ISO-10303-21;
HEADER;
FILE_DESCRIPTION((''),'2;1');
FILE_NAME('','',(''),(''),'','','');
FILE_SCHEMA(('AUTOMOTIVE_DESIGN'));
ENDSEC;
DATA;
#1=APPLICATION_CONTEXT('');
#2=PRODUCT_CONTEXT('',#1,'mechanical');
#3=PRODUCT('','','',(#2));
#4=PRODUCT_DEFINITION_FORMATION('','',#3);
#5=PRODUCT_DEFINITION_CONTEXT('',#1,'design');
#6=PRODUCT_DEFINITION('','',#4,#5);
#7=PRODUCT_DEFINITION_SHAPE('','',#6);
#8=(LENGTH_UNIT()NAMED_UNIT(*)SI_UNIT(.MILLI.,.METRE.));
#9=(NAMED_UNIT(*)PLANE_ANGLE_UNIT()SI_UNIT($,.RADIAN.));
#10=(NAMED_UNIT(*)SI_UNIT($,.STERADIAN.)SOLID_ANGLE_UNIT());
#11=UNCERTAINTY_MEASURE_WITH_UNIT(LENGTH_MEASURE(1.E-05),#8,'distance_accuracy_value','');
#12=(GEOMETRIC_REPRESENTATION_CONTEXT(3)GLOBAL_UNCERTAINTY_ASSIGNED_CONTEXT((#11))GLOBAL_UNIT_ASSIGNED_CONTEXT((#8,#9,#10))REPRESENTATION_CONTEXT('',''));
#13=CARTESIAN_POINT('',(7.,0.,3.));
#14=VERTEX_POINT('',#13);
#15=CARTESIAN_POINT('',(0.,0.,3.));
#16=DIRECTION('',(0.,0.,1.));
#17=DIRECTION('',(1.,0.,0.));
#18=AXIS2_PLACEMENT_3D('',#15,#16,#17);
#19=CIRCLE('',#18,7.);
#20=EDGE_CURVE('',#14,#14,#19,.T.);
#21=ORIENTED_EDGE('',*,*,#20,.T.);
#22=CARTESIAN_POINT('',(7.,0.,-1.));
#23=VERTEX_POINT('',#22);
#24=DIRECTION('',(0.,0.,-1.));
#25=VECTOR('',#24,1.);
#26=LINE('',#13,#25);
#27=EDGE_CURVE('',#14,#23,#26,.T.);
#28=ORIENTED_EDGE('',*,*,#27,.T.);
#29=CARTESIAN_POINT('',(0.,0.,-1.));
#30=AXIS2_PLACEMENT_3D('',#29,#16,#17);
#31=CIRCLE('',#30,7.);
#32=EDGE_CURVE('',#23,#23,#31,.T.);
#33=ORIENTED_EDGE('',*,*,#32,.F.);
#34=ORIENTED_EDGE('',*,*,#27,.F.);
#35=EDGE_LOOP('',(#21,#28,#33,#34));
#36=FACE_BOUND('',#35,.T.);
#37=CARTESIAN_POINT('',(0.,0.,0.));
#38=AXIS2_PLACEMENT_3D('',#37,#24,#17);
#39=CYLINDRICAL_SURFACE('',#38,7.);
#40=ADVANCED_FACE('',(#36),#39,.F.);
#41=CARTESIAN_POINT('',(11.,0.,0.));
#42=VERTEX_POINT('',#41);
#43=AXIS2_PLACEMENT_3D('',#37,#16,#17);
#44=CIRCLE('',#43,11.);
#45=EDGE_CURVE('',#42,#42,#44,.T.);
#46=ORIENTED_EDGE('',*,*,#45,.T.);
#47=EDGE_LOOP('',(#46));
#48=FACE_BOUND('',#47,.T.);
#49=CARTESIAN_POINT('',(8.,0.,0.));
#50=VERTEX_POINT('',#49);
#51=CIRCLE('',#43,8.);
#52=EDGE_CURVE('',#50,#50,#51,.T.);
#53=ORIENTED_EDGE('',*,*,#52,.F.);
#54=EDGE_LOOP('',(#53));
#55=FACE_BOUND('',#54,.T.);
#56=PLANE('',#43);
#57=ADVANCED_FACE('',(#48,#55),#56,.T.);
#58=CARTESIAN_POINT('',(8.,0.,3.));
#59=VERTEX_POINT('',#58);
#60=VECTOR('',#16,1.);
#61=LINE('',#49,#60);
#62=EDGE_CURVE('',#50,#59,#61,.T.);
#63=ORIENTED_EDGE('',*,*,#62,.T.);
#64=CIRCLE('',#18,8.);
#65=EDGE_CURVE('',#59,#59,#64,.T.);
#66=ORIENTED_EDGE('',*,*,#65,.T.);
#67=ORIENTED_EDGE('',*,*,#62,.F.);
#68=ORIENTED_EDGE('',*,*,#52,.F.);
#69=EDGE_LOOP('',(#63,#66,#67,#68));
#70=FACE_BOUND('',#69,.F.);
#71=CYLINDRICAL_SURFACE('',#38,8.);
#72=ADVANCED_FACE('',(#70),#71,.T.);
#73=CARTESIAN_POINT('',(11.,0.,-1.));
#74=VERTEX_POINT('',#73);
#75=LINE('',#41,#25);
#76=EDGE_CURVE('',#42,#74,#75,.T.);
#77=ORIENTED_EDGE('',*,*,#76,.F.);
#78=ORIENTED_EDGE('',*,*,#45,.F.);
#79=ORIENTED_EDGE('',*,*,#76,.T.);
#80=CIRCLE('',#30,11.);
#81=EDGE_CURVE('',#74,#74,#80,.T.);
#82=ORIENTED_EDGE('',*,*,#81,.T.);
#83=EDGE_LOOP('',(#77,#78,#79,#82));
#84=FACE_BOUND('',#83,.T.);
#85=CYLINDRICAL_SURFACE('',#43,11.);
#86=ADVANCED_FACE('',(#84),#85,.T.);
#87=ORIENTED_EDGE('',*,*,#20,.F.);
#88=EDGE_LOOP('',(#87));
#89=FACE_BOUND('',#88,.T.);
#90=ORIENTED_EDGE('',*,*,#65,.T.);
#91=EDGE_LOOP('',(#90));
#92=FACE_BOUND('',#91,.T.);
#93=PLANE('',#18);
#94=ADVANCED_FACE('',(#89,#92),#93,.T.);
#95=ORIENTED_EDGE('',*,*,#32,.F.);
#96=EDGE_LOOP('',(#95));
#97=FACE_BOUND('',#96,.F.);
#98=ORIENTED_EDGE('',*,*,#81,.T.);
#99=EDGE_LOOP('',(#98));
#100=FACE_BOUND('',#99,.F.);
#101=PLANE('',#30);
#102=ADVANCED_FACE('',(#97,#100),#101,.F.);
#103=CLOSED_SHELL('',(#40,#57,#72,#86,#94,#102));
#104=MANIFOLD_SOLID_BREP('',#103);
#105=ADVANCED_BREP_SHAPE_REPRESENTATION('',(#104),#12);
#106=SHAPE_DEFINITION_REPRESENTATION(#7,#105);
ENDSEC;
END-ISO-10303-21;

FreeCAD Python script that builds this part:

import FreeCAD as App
import Part
import Sketcher
Q = App.Units.Quantity

doc = App.newDocument("Part")
body = doc.addObject("PartDesign::Body", "Body")

sketch1 = doc.addObject("Sketcher::SketchObject", "Sketch")
body.addObject(sketch1)
sketch1.AttachmentSupport = (doc.XY_Plane, [""])
sketch1.MapMode = "FlatFace"
sketch1.addGeometry([
    Part.Circle(App.Vector(0, 0, 0), App.Vector(0, 0, 1), 8),
    Part.Circle(App.Vector(0, 0, 0), App.Vector(0, 0, 1), 7),
], False)
sketch1.addConstraint([
    Sketcher.Constraint("Coincident", 0, 3, -1, 1),
    Sketcher.Constraint("Coincident", 1, 3, -1, 1),
    Sketcher.Constraint("Diameter", 0, Q("16 mm")),
    Sketcher.Constraint("Diameter", 1, Q("14 mm")),
])
pad1 = doc.addObject("PartDesign::Pad", "Pad")
body.addObject(pad1)
pad1.Profile = sketch1
pad1.Length = 3

sketch2 = doc.addObject("Sketcher::SketchObject", "Sketch001")
body.addObject(sketch2)
sketch2.AttachmentSupport = (doc.XY_Plane, [""])
sketch2.MapMode = "FlatFace"
sketch2.addGeometry([
    Part.Circle(App.Vector(0, 0, 0), App.Vector(0, 0, 1), 11),
    Part.Circle(App.Vector(0, 0, 0), App.Vector(0, 0, 1), 7),
], False)
sketch2.addConstraint([
    Sketcher.Constraint("Coincident", 0, 3, -1, 1),
    Sketcher.Constraint("Coincident", 1, 3, -1, 1),
    Sketcher.Constraint("Diameter", 0, Q("22 mm")),
    Sketcher.Constraint("Diameter", 1, Q("14 mm")),
])
pad2 = doc.addObject("PartDesign::Pad", "Pad001")
body.addObject(pad2)
pad2.Profile = sketch2
pad2.Length = 1
pad2.Reversed = True

doc.recompute()
